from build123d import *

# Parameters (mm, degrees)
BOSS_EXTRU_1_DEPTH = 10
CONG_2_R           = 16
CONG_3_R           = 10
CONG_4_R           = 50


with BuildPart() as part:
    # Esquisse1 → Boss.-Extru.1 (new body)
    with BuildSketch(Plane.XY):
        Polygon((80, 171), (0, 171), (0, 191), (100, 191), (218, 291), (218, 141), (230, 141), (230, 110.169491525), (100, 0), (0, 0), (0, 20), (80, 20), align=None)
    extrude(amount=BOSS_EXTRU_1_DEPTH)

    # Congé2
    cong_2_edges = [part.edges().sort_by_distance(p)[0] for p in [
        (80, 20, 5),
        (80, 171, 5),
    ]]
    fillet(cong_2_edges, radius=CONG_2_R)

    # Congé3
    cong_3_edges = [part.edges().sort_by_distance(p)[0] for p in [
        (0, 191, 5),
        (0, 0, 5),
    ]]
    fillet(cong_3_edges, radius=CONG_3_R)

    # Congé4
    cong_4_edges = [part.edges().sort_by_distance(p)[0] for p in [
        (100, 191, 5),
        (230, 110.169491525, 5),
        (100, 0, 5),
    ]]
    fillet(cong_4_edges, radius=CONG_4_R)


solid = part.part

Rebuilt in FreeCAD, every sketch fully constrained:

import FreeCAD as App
import Part
import Sketcher


def edges_at(feature, points):
    """Names of the edges that pass closest to the given points."""
    edges = feature.Shape.Edges
    near = lambda p: min(range(len(edges)), key=lambda i: edges[i].distToShape(Part.Vertex(*p))[0])
    return sorted({f"Edge{near(p) + 1}" for p in points})


def add_polygon(sketch, points):
    """Adds a closed chain of lines whose ends are joined by coincident constraints."""
    first, n = sketch.GeometryCount, len(points)
    for a, b in zip(points, points[1:] + points[:1]):
        sketch.addGeometry(Part.LineSegment(App.Vector(*a, 0), App.Vector(*b, 0)), False)
    for i in range(n):
        sketch.addConstraint(Sketcher.Constraint("Coincident", first + i, 2, first + (i + 1) % n, 1))

doc = App.newDocument("Part")
body = doc.addObject("PartDesign::Body", "Body")

# Sketch on XY plane
sketch1 = body.newObject("Sketcher::SketchObject", "Sketch")
sketch1.AttachmentSupport = (doc.getObject("XY_Plane"), [""])
sketch1.MapMode = "FlatFace"
add_polygon(sketch1, [(0, 171), (80, 171), (80, 20), (0, 20), (0, 0), (100, 0), (230, 110), (230, 141), (218, 141), (218, 291), (100, 191), (0, 191)])  # lines 0-11
sketch1.addConstraint([
    Sketcher.Constraint("Horizontal", 0),
    Sketcher.Constraint("Vertical", 1),
    Sketcher.Constraint("Horizontal", 2),
    Sketcher.Constraint("Vertical", 3),
    Sketcher.Constraint("Horizontal", 4),
    Sketcher.Constraint("Vertical", 6),
    Sketcher.Constraint("Horizontal", 7),
    Sketcher.Constraint("Vertical", 8),
    Sketcher.Constraint("Horizontal", 10),
    Sketcher.Constraint("Vertical", 11),
    Sketcher.Constraint("Coincident", 3, 2, -1, 1),
    Sketcher.Constraint("PointOnObject", 10, 2, -2),
    Sketcher.Constraint("Parallel", 5, 9),
    Sketcher.Constraint("Vertical", 4, 2, 9, 2),
    Sketcher.Constraint("Equal", 3, 11),
    Sketcher.Constraint("DistanceX", 0, 1, 0, 2, 80.0),
    Sketcher.Constraint("DistanceX", 4, 1, 4, 2, 100.0),
    Sketcher.Constraint("DistanceX", 7, 2, 7, 1, 12.0),
    Sketcher.Constraint("DistanceY", 1, 2, 1, 1, 151.0),
    Sketcher.Constraint("DistanceY", 3, 2, 3, 1, 20.0),
    Sketcher.Constraint("DistanceY", 8, 1, 8, 2, 150.0),
    Sketcher.Constraint("DistanceX", -1, 1, 5, 2, 230.0),
    Sketcher.Constraint("DistanceY", -1, 1, 6, 2, 141.0),
])
pad1 = body.newObject("PartDesign::Pad", "Pad")
pad1.Profile = sketch1
pad1.Length = 10
doc.recompute()

fillet = body.newObject("PartDesign::Fillet", "Fillet")
fillet.Base = (pad1, edges_at(pad1, [(80, 20, 5), (80, 171, 5)]))
fillet.Radius = 16
doc.recompute()

fillet2 = body.newObject("PartDesign::Fillet", "Fillet001")
fillet2.Base = (fillet, edges_at(fillet, [(0, 191, 5), (0, 0, 5)]))
fillet2.Radius = 10
doc.recompute()

fillet3 = body.newObject("PartDesign::Fillet", "Fillet002")
fillet3.Base = (fillet2, edges_at(fillet2, [(100, 191, 5), (230, 110.169, 5), (100, 0, 5)]))
fillet3.Radius = 50

doc.recompute()
